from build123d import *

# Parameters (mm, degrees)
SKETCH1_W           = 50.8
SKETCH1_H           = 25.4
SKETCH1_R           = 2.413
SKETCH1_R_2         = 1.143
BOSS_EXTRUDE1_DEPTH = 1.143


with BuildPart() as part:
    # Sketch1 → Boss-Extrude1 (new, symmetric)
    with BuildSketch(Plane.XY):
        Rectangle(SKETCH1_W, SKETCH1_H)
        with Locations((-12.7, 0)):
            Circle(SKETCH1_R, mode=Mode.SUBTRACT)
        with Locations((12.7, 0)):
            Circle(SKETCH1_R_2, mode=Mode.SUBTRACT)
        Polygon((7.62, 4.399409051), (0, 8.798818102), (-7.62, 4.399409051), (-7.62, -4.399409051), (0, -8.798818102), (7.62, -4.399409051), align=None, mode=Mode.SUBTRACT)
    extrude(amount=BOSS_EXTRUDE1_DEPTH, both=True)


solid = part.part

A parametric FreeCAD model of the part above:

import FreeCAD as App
import Part
import Sketcher
from FreeCAD import Vector
Q = App.Units.Quantity


def add_polygon(sketch, points):
    """Adds a closed chain of lines whose ends are joined by coincident constraints."""
    first, n = sketch.GeometryCount, len(points)
    for a, b in zip(points, points[1:] + points[:1]):
        sketch.addGeometry(Part.LineSegment(App.Vector(*a, 0), App.Vector(*b, 0)), False)
    for i in range(n):
        sketch.addConstraint(Sketcher.Constraint("Coincident", first + i, 2, first + (i + 1) % n, 1))

doc = App.newDocument("Part")
body = doc.addObject("PartDesign::Body", "Body")

sketch1 = body.newObject("Sketcher::SketchObject", "Sketch")
sketch1.AttachmentSupport = (doc.getObject("XY_Plane"), [""])
sketch1.MapMode = "FlatFace"
add_polygon(sketch1, [(-25.4, 12.7), (-25.4, -12.7), (25.4, -12.7), (25.4, 12.7)])
sketch1.addGeometry(Part.Circle(Vector(-12.7, 0, 0), Vector(0, 0, 1), 2.4), False)
add_polygon(sketch1, [(0, 8.8), (7.6, 4.4), (7.6, -4.4), (0, -8.8), (-7.6, -4.4), (-7.6, 4.4)])
sketch1.addGeometry(Part.Circle(Vector(12.7, 0, 0), Vector(0, 0, 1), 1.1), False)
sketch1.addConstraint([
    Sketcher.Constraint("Vertical", 0),
    Sketcher.Constraint("Horizontal", 1),
    Sketcher.Constraint("Vertical", 2),
    Sketcher.Constraint("Horizontal", 3),
    Sketcher.Constraint("Vertical", 6),
    Sketcher.Constraint("Vertical", 9),
    Sketcher.Constraint("Symmetric", 4, 3, 11, 3, -1, 1),
    Sketcher.Constraint("Symmetric", 0, 2, 2, 2, -1, 1),
    Sketcher.Constraint("Symmetric", 5, 2, 8, 2, -1, 1),
    Sketcher.Constraint("Symmetric", 7, 2, 10, 2, -1, 1),
    Sketcher.Constraint("PointOnObject", 4, 3, -1),
    Sketcher.Constraint("PointOnObject", 7, 2, -2),
    Sketcher.Constraint("Parallel", 7, 10),
    Sketcher.Constraint("Horizontal", 6, 2, 8, 2),
    Sketcher.Constraint("Diameter", 4, Q("0.19 in")),
    Sketcher.Constraint("Diameter", 11, Q("0.09 in")),
    Sketcher.Constraint("DistanceX", 1, 1, 1, 2, Q("2 in")),
    Sketcher.Constraint("DistanceY", 0, 2, 0, 1, Q("1 in")),
    Sketcher.Constraint("Angle", 5, Q("-30 deg")),
    Sketcher.Constraint("DistanceX", 4, 3, 11, 3, Q("1 in")),
    Sketcher.Constraint("DistanceX", -1, 1, 5, 2, Q("0.3 in")),
    Sketcher.Constraint("DistanceY", 6, 2, 6, 1, 8.798818),
])
pad1 = body.newObject("PartDesign::Pad", "Pad")
pad1.Profile = sketch1
pad1.Length = Q("0.09 in")
pad1.Midplane = True

doc.recompute()
